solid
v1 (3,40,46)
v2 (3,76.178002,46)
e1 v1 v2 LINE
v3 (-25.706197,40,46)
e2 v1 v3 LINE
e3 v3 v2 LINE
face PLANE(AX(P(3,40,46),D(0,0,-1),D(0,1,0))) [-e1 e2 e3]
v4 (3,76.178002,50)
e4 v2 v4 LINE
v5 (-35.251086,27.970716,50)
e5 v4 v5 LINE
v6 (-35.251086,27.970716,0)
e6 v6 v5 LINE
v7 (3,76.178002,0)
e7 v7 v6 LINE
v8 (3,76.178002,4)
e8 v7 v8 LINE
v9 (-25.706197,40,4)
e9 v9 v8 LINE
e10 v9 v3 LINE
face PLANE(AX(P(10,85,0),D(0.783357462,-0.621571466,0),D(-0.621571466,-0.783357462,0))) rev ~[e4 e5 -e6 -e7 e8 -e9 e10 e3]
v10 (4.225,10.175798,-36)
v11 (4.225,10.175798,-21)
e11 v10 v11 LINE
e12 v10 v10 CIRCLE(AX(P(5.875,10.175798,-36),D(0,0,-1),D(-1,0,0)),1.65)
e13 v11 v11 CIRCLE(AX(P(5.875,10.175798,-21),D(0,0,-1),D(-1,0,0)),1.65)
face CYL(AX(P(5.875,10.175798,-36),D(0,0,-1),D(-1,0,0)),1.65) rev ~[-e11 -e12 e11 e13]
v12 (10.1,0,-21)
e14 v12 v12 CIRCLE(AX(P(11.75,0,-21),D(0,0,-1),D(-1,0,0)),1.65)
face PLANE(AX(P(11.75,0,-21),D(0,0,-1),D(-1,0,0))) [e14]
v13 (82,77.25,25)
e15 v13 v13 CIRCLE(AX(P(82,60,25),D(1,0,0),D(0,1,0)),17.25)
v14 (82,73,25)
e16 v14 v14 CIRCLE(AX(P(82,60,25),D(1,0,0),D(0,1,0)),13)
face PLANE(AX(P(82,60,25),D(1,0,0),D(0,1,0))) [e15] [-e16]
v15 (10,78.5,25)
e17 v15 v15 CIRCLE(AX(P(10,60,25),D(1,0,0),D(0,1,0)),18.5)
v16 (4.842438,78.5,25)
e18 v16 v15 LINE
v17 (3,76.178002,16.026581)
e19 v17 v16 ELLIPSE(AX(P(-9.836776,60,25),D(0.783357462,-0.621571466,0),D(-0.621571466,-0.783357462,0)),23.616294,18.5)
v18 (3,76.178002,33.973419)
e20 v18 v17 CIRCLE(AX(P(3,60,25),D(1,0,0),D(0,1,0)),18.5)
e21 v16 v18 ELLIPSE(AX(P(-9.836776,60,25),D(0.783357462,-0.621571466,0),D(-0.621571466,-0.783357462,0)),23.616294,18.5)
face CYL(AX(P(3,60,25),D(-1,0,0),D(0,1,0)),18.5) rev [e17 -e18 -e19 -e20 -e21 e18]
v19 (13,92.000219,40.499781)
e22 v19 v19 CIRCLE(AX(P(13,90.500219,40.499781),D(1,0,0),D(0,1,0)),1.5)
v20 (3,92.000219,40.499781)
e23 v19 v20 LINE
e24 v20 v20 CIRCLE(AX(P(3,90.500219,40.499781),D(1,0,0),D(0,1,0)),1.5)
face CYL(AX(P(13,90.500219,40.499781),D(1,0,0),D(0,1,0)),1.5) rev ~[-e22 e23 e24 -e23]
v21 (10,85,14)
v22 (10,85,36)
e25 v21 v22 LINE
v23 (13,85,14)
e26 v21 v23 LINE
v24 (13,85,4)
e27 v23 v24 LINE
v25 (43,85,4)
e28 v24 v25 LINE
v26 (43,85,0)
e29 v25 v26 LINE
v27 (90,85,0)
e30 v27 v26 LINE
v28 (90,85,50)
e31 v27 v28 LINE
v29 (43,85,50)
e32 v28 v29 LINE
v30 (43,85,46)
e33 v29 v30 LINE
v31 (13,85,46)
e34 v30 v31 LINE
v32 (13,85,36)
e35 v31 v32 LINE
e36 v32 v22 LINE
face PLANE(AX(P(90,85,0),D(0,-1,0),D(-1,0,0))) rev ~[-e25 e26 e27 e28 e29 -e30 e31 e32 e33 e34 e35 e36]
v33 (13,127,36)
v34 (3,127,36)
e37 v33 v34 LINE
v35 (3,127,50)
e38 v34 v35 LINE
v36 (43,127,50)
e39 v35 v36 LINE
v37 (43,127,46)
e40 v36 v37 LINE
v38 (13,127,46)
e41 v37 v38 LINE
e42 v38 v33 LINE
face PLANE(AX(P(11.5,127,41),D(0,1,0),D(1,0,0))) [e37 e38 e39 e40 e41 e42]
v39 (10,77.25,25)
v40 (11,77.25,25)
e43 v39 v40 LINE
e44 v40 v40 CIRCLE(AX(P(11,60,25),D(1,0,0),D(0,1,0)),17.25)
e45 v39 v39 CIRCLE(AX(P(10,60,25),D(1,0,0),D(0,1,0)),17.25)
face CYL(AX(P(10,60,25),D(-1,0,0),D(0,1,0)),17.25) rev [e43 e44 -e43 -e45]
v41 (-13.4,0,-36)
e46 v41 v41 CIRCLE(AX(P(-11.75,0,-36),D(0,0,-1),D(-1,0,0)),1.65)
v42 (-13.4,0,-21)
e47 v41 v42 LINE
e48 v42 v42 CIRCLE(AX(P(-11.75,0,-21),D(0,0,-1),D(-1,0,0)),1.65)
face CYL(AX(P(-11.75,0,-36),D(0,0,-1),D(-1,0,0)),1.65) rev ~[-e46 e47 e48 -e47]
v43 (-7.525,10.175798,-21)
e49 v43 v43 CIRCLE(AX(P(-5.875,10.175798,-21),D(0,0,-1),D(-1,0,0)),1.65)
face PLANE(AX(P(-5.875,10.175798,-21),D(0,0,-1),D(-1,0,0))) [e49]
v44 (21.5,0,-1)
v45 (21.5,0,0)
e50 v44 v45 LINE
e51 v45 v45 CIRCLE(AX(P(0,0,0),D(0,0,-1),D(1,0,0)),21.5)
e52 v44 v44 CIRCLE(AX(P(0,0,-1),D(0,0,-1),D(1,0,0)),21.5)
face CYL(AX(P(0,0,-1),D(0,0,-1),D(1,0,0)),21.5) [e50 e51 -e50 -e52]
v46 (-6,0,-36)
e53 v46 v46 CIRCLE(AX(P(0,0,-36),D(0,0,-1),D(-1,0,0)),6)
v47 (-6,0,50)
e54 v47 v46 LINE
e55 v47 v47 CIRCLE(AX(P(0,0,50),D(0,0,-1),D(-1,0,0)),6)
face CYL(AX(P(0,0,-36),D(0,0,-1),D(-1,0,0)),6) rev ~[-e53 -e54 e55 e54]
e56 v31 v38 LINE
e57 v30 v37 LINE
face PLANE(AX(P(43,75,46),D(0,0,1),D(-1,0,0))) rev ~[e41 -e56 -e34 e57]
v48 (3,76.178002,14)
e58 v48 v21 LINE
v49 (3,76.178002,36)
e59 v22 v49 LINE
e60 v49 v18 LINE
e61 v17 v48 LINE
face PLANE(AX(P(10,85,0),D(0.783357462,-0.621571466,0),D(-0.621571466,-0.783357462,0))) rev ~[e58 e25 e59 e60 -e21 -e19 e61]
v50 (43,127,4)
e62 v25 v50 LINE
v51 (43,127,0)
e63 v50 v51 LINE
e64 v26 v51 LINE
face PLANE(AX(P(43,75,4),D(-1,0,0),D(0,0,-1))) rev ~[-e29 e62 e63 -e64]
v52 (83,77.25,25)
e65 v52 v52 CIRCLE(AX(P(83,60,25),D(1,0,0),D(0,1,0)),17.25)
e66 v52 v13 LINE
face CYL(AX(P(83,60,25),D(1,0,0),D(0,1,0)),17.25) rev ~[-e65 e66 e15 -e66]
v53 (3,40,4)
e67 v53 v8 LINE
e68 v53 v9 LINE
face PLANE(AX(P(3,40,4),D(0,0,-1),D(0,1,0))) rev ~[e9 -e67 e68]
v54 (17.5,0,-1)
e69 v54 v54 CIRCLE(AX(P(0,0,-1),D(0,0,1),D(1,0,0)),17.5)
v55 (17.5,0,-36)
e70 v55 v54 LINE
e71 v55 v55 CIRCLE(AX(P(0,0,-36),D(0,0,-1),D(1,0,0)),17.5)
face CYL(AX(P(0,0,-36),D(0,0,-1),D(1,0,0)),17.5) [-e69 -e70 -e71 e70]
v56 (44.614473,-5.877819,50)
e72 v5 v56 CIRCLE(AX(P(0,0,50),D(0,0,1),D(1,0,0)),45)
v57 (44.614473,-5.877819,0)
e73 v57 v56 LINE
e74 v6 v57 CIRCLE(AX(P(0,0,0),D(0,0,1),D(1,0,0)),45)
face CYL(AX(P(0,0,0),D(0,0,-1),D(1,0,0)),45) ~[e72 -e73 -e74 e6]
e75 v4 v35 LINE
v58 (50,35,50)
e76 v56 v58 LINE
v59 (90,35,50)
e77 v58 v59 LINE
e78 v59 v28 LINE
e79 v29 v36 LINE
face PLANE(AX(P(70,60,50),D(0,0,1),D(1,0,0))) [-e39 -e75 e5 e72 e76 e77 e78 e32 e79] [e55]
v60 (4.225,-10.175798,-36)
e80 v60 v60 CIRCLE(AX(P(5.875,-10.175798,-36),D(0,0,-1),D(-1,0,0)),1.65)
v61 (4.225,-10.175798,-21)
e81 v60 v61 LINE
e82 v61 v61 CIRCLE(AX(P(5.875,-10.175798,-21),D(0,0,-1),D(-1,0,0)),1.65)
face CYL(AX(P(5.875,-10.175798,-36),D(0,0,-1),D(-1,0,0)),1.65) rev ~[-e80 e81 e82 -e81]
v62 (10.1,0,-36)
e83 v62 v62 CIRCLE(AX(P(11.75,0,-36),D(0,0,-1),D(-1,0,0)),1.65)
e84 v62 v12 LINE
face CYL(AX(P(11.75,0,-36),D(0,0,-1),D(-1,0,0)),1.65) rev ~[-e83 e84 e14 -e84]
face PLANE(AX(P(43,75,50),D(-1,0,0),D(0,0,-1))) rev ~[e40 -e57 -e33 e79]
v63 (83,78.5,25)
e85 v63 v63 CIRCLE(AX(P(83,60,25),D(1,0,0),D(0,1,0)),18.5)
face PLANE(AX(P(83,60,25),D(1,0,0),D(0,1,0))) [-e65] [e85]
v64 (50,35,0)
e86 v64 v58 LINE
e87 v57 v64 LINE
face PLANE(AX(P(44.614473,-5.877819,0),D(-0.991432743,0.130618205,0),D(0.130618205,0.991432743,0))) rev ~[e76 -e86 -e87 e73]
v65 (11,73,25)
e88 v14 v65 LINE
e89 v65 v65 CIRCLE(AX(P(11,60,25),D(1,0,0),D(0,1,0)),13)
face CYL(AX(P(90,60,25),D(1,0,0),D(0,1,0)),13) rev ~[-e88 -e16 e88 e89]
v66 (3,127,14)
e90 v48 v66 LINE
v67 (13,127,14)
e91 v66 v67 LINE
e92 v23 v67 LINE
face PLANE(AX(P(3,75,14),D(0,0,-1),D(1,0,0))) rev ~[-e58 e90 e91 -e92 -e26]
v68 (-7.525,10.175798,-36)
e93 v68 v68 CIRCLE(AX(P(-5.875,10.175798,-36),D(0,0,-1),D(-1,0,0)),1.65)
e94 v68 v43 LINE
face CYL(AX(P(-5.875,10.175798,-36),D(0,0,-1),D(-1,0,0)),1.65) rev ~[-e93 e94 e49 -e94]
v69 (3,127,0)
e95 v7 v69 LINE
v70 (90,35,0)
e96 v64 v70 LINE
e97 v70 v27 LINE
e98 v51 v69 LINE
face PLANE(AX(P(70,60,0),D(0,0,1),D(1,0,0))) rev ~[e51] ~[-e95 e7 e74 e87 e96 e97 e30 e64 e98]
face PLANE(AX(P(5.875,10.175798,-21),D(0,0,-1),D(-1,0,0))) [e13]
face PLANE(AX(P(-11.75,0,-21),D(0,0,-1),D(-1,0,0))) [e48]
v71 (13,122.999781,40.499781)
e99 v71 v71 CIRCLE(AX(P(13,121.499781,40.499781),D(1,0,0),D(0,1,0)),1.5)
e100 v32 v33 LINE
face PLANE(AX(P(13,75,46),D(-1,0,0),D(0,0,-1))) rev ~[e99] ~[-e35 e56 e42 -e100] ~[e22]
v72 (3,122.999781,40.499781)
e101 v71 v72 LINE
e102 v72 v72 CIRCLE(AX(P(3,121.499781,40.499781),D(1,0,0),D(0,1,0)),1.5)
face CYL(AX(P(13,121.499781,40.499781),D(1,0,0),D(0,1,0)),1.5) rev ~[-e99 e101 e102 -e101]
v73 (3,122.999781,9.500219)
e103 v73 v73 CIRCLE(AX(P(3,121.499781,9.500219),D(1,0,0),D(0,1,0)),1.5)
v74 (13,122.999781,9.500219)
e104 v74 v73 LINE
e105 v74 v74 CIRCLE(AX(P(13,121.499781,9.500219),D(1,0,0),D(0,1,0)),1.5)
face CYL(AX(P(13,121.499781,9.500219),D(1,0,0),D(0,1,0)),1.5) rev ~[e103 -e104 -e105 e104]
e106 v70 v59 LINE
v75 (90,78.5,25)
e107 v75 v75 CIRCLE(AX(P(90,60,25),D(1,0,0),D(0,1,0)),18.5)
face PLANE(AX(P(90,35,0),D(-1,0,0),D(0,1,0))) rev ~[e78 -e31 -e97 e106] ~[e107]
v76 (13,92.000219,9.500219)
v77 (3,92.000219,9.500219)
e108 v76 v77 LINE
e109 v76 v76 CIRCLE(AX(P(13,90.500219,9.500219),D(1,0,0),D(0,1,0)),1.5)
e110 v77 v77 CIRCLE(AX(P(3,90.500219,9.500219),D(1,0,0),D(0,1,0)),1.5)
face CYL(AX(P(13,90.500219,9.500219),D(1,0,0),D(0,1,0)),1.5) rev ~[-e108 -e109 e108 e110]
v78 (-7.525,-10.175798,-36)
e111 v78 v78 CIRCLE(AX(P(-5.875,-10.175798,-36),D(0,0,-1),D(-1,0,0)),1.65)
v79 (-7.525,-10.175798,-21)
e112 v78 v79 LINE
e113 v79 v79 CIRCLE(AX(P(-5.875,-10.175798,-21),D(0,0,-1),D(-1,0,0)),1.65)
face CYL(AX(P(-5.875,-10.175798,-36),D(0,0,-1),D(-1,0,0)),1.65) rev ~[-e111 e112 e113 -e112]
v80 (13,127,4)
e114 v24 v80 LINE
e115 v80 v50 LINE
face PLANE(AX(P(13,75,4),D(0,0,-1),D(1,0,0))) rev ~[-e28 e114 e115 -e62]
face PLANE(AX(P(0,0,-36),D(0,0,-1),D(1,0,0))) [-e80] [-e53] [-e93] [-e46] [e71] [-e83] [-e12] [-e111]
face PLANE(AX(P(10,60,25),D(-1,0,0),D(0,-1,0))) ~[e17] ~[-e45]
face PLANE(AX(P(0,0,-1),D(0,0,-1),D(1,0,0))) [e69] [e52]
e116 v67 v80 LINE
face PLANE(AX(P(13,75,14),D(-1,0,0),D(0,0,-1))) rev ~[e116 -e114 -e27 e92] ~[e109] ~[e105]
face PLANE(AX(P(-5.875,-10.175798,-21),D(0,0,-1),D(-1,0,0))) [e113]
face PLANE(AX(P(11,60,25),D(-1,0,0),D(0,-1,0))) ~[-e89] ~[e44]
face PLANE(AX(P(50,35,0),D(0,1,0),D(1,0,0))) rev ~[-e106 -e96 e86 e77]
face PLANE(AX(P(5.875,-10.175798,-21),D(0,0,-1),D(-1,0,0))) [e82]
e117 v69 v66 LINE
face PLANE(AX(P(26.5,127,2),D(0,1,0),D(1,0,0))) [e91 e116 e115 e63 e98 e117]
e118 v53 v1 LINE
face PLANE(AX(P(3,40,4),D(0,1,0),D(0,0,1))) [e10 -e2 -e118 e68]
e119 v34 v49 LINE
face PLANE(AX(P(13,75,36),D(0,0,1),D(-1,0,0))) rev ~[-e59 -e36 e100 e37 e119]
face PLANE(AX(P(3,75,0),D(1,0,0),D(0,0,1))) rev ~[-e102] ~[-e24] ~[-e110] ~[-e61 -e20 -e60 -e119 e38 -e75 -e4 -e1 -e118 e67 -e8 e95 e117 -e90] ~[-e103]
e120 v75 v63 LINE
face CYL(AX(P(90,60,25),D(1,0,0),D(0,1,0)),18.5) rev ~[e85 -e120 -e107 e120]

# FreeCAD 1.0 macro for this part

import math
import FreeCAD as App
import Part
import Sketcher
from FreeCAD import Vector


def add_polygon(sketch, points):
    """Adds a closed chain of lines whose ends are joined by coincident constraints."""
    first, n = sketch.GeometryCount, len(points)
    for a, b in zip(points, points[1:] + points[:1]):
        sketch.addGeometry(Part.LineSegment(App.Vector(*a, 0), App.Vector(*b, 0)), False)
    for i in range(n):
        sketch.addConstraint(Sketcher.Constraint("Coincident", first + i, 2, first + (i + 1) % n, 1))

doc = App.newDocument("Part")
body = doc.addObject("PartDesign::Body", "Body")

sketch1 = body.newObject("Sketcher::SketchObject", "Sketch")
sketch1.AttachmentSupport = (doc.getObject("XY_Plane"), [""])
sketch1.MapMode = "FlatFace"
sketch1.addGeometry(Part.LineSegment(Vector(50, 35, 0), Vector(90, 35, 0)), False)
sketch1.addGeometry(Part.LineSegment(Vector(90, 35, 0), Vector(90, 85, 0)), False)
sketch1.addGeometry(Part.LineSegment(Vector(90, 85, 0), Vector(10, 85, 0)), False)
sketch1.addGeometry(Part.LineSegment(Vector(10, 85, 0), Vector(-35.251086, 27.970716, 0)), False)
sketch1.addGeometry(Part.ArcOfCircle(Part.Circle(Vector(0, 0, 0), Vector(0, 0, 1), 45), math.radians(141.569018), math.radians(352.494683)), False)
sketch1.addGeometry(Part.LineSegment(Vector(44.614473, -5.877819, 0), Vector(50, 35, 0)), False)
sketch1.addConstraint(Sketcher.Constraint("Coincident", 0, 2, 1, 1))
sketch1.addConstraint(Sketcher.Constraint("Coincident", 1, 2, 2, 1))
sketch1.addConstraint(Sketcher.Constraint("Coincident", 2, 2, 3, 1))
sketch1.addConstraint(Sketcher.Constraint("Tangent", 3, 2, 4, 1))
sketch1.addConstraint(Sketcher.Constraint("Tangent", 4, 2, 5, 1))
sketch1.addConstraint(Sketcher.Constraint("Coincident", 5, 2, 0, 1))
sketch1.addConstraint(Sketcher.Constraint("Horizontal", 0))
sketch1.addConstraint(Sketcher.Constraint("Vertical", 1))
sketch1.addConstraint(Sketcher.Constraint("Horizontal", 2))
sketch1.addConstraint(Sketcher.Constraint("Coincident", 4, 3, -1, 1))
sketch1.addConstraint(Sketcher.Constraint("Radius", 4, 45.0))
sketch1.addConstraint(Sketcher.Constraint("DistanceX", 0, 1, 0, 2, 40.0))
sketch1.addConstraint(Sketcher.Constraint("DistanceX", 2, 2, 2, 1, 80.0))
sketch1.addConstraint(Sketcher.Constraint("DistanceY", 1, 1, 1, 2, 50.0))
sketch1.addConstraint(Sketcher.Constraint("DistanceX", -1, 1, 0, 2, 90.0))
sketch1.addConstraint(Sketcher.Constraint("DistanceY", -1, 1, 0, 2, 35.0))
pad1 = body.newObject("PartDesign::Pad", "Pad")
pad1.Profile = sketch1
pad1.Length = 50

sketch2 = body.newObject("Sketcher::SketchObject", "Sketch001")
sketch2.AttachmentSupport = (doc.getObject("YZ_Plane"), [""])
sketch2.MapMode = "FlatFace"
sketch2.AttachmentOffset = App.Placement(Vector(0, 0, 90), App.Rotation())
sketch2.addGeometry(Part.Circle(Vector(60, 25, 0), Vector(0, 0, 1), 13), False)
sketch2.addConstraint(Sketcher.Constraint("Diameter", 0, 26.0))
sketch2.addConstraint(Sketcher.Constraint("DistanceX", -1, 1, 0, 3, 60.0))
sketch2.addConstraint(Sketcher.Constraint("DistanceY", -1, 1, 0, 3, 25.0))
pocket1 = body.newObject("PartDesign::Pocket", "Pocket")
pocket1.Profile = sketch2
pocket1.Length = 130

sketch3 = body.newObject("Sketcher::SketchObject", "Sketch002")
sketch3.AttachmentSupport = (doc.getObject("XZ_Plane"), [""])
sketch3.MapMode = "FlatFace"
sketch3.AttachmentOffset = App.Placement(Vector(0, 0, -85), App.Rotation())
add_polygon(sketch3, [(43, 4), (43, 0), (3, 0), (3, 14), (13, 14), (13, 4)])
add_polygon(sketch3, [(13, 46), (13, 36), (3, 36), (3, 50), (43, 50), (43, 46)])
sketch3.addConstraint(Sketcher.Constraint("Vertical", 0))
sketch3.addConstraint(Sketcher.Constraint("Horizontal", 1))
sketch3.addConstraint(Sketcher.Constraint("Vertical", 2))
sketch3.addConstraint(Sketcher.Constraint("Horizontal", 3))
sketch3.addConstraint(Sketcher.Constraint("Vertical", 4))
sketch3.addConstraint(Sketcher.Constraint("Horizontal", 5))
sketch3.addConstraint(Sketcher.Constraint("Vertical", 6))
sketch3.addConstraint(Sketcher.Constraint("Horizontal", 7))
sketch3.addConstraint(Sketcher.Constraint("Vertical", 8))
sketch3.addConstraint(Sketcher.Constraint("Horizontal", 9))
sketch3.addConstraint(Sketcher.Constraint("Vertical", 10))
sketch3.addConstraint(Sketcher.Constraint("Horizontal", 11))
sketch3.addConstraint(Sketcher.Constraint("PointOnObject", 0, 2, -1))
sketch3.addConstraint(Sketcher.Constraint("Vertical", 4, 2, 6, 2))
sketch3.addConstraint(Sketcher.Constraint("Vertical", 2, 2, 7, 2))
sketch3.addConstraint(Sketcher.Constraint("Vertical", 5, 2, 9, 2))
sketch3.addConstraint(Sketcher.Constraint("Equal", 7, 4))
sketch3.addConstraint(Sketcher.Constraint("Equal", 4, 6))
sketch3.addConstraint(Sketcher.Constraint("Equal", 2, 8))
sketch3.addConstraint(Sketcher.Constraint("DistanceX", 1, 2, 1, 1, 40.0))
sketch3.addConstraint(Sketcher.Constraint("DistanceX", 3, 1, 3, 2, 10.0))
sketch3.addConstraint(Sketcher.Constraint("DistanceY", 0, 2, 0, 1, 4.0))
sketch3.addConstraint(Sketcher.Constraint("DistanceX", -1, 1, 0, 2, 43.0))
sketch3.addConstraint(Sketcher.Constraint("DistanceY", -1, 1, 6, 2, 36.0))
pad2 = body.newObject("PartDesign::Pad", "Pad001")
pad2.Profile = sketch3
pad2.Type = "TwoLengths"
pad2.Length = 42
pad2.Length2 = 10
pad2.Reversed = True

sketch4 = body.newObject("Sketcher::SketchObject", "Sketch003")
sketch4.AttachmentSupport = (doc.getObject("YZ_Plane"), [""])
sketch4.MapMode = "FlatFace"
sketch4.AttachmentOffset = App.Placement(Vector(0, 0, -40), App.Rotation())
add_polygon(sketch4, [(80, 4), (40, 4), (40, 46), (80, 46)])
sketch4.addConstraint(Sketcher.Constraint("Horizontal", 0))
sketch4.addConstraint(Sketcher.Constraint("Vertical", 1))
sketch4.addConstraint(Sketcher.Constraint("Horizontal", 2))
sketch4.addConstraint(Sketcher.Constraint("Vertical", 3))
sketch4.addConstraint(Sketcher.Constraint("DistanceX", 0, 2, 0, 1, 40.0))
sketch4.addConstraint(Sketcher.Constraint("DistanceY", 1, 1, 1, 2, 42.0))
sketch4.addConstraint(Sketcher.Constraint("DistanceX", -1, 1, 0, 2, 40.0))
sketch4.addConstraint(Sketcher.Constraint("DistanceY", -1, 1, 0, 2, 4.0))
pocket2 = body.newObject("PartDesign::Pocket", "Pocket001")
pocket2.Profile = sketch4
pocket2.Type = "TwoLengths"
pocket2.Length = 11
pocket2.Length2 = 43

sketch5 = body.newObject("Sketcher::SketchObject", "Sketch004")
sketch5.AttachmentSupport = (doc.getObject("YZ_Plane"), [""])
sketch5.MapMode = "FlatFace"
sketch5.AttachmentOffset = App.Placement(Vector(0, 0, 13), App.Rotation())
sketch5.addGeometry(Part.Circle(Vector(121.499781, 9.500219, 0), Vector(0, 0, 1), 1.5), False)
sketch5.addGeometry(Part.Circle(Vector(90.500219, 9.500219, 0), Vector(0, 0, 1), 1.5), False)
sketch5.addGeometry(Part.Circle(Vector(90.500219, 40.499781, 0), Vector(0, 0, 1), 1.5), False)
sketch5.addGeometry(Part.Circle(Vector(121.499781, 40.499781, 0), Vector(0, 0, 1), 1.5), False)
sketch5.addConstraint(Sketcher.Constraint("Equal", 0, 1))
sketch5.addConstraint(Sketcher.Constraint("Equal", 1, 2))
sketch5.addConstraint(Sketcher.Constraint("Equal", 2, 3))
sketch5.addConstraint(Sketcher.Constraint("Horizontal", 0, 3, 1, 3))
sketch5.addConstraint(Sketcher.Constraint("Horizontal", 2, 3, 3, 3))
sketch5.addConstraint(Sketcher.Constraint("Vertical", 1, 3, 2, 3))
sketch5.addConstraint(Sketcher.Constraint("Vertical", 0, 3, 3, 3))
sketch5.addConstraint(Sketcher.Constraint("Diameter", 0, 3.0))
sketch5.addConstraint(Sketcher.Constraint("DistanceX", -1, 1, 0, 3, 121.499781))
sketch5.addConstraint(Sketcher.Constraint("DistanceY", -1, 1, 0, 3, 9.500219))
sketch5.addConstraint(Sketcher.Constraint("DistanceX", -1, 1, 1, 3, 90.500219))
sketch5.addConstraint(Sketcher.Constraint("DistanceY", -1, 1, 2, 3, 40.499781))
pocket3 = body.newObject("PartDesign::Pocket", "Pocket002")
pocket3.Profile = sketch5
pocket3.Length = 10

sketch6 = body.newObject("Sketcher::SketchObject", "Sketch005")
sketch6.AttachmentSupport = (doc.getObject("XY_Plane"), [""])
sketch6.MapMode = "FlatFace"
sketch6.addGeometry(Part.Circle(Vector(0, 0, 0), Vector(0, 0, 1), 6), False)
sketch6.addConstraint(Sketcher.Constraint("Coincident", 0, 3, -1, 1))
sketch6.addConstraint(Sketcher.Constraint("Diameter", 0, 12.0))
pocket4 = body.newObject("PartDesign::Pocket", "Pocket003")
pocket4.Profile = sketch6
pocket4.Length = 50
pocket4.Reversed = True

sketch7 = body.newObject("Sketcher::SketchObject", "Sketch006")
sketch7.AttachmentSupport = (doc.getObject("XY_Plane"), [""])
sketch7.MapMode = "FlatFace"
sketch7.AttachmentOffset = App.Placement(Vector(0, 0, -36), App.Rotation())
sketch7.addGeometry(Part.Circle(Vector(0, 0, 0), Vector(0, 0, 1), 17.5), False)
sketch7.addGeometry(Part.Circle(Vector(0, 0, 0), Vector(0, 0, 1), 6), False)
sketch7.addConstraint(Sketcher.Constraint("Coincident", 0, 3, -1, 1))
sketch7.addConstraint(Sketcher.Constraint("Coincident", 1, 3, -1, 1))
sketch7.addConstraint(Sketcher.Constraint("Diameter", 0, 35.0))
sketch7.addConstraint(Sketcher.Constraint("Diameter", 1, 12.0))
pad3 = body.newObject("PartDesign::Pad", "Pad002")
pad3.Profile = sketch7
pad3.Length = 36

sketch8 = body.newObject("Sketcher::SketchObject", "Sketch007")
sketch8.AttachmentSupport = (doc.getObject("XY_Plane"), [""])
sketch8.MapMode = "FlatFace"
sketch8.AttachmentOffset = App.Placement(Vector(0, 0, -1), App.Rotation())
sketch8.addGeometry(Part.Circle(Vector(0, 0, 0), Vector(0, 0, 1), 21.5), False)
sketch8.addGeometry(Part.Circle(Vector(0, 0, 0), Vector(0, 0, 1), 17.5), False)
sketch8.addConstraint(Sketcher.Constraint("Coincident", 0, 3, -1, 1))
sketch8.addConstraint(Sketcher.Constraint("Coincident", 1, 3, -1, 1))
sketch8.addConstraint(Sketcher.Constraint("Diameter", 0, 43.0))
sketch8.addConstraint(Sketcher.Constraint("Diameter", 1, 35.0))
pad4 = body.newObject("PartDesign::Pad", "Pad003")
pad4.Profile = sketch8
pad4.Length = 1

sketch9 = body.newObject("Sketcher::SketchObject", "Sketch008")
sketch9.AttachmentSupport = (doc.getObject("XY_Plane"), [""])
sketch9.MapMode = "FlatFace"
sketch9.AttachmentOffset = App.Placement(Vector(0, 0, -36), App.Rotation())
sketch9.addGeometry(Part.Circle(Vector(11.75, 0, 0), Vector(0, 0, 1), 1.65), False)
sketch9.addGeometry(Part.Circle(Vector(5.875, 10.175798, 0), Vector(0, 0, 1), 1.65), False)
sketch9.addGeometry(Part.Circle(Vector(-5.875, 10.175798, 0), Vector(0, 0, 1), 1.65), False)
sketch9.addGeometry(Part.Circle(Vector(-11.75, 0, 0), Vector(0, 0, 1), 1.65), False)
sketch9.addGeometry(Part.Circle(Vector(-5.875, -10.175798, 0), Vector(0, 0, 1), 1.65), False)
sketch9.addGeometry(Part.Circle(Vector(5.875, -10.175798, 0), Vector(0, 0, 1), 1.65), False)
sketch9.addConstraint(Sketcher.Constraint("Equal", 0, 1))
sketch9.addConstraint(Sketcher.Constraint("Equal", 1, 2))
sketch9.addConstraint(Sketcher.Constraint("Equal", 2, 3))
sketch9.addConstraint(Sketcher.Constraint("Equal", 3, 4))
sketch9.addConstraint(Sketcher.Constraint("Equal", 4, 5))
sketch9.addConstraint(Sketcher.Constraint("Symmetric", 0, 3, 3, 3, -1, 1))
sketch9.addConstraint(Sketcher.Constraint("Symmetric", 1, 3, 4, 3, -1, 1))
sketch9.addConstraint(Sketcher.Constraint("Symmetric", 2, 3, 5, 3, -1, 1))
sketch9.addConstraint(Sketcher.Constraint("Symmetric", 1, 3, 2, 3, -2))
sketch9.addConstraint(Sketcher.Constraint("PointOnObject", 0, 3, -1))
sketch9.addConstraint(Sketcher.Constraint("Diameter", 0, 3.3))
sketch9.addConstraint(Sketcher.Constraint("DistanceX", 3, 3, 0, 3, 23.5))
sketch9.addConstraint(Sketcher.Constraint("DistanceX", 2, 3, 1, 3, 11.75))
sketch9.addConstraint(Sketcher.Constraint("DistanceY", -1, 1, 1, 3, 10.175798))
pocket5 = body.newObject("PartDesign::Pocket", "Pocket004")
pocket5.Profile = sketch9
pocket5.Length = 15
pocket5.Reversed = True

sketch10 = body.newObject("Sketcher::SketchObject", "Sketch009")
sketch10.AttachmentSupport = (doc.getObject("YZ_Plane"), [""])
sketch10.MapMode = "FlatFace"
sketch10.AttachmentOffset = App.Placement(Vector(0, 0, 90), App.Rotation())
sketch10.addGeometry(Part.Circle(Vector(60, 25, 0), Vector(0, 0, 1), 18.5), False)
sketch10.addConstraint(Sketcher.Constraint("Diameter", 0, 37.0))
sketch10.addConstraint(Sketcher.Constraint("DistanceX", -1, 1, 0, 3, 60.0))
sketch10.addConstraint(Sketcher.Constraint("DistanceY", -1, 1, 0, 3, 25.0))
pocket6 = body.newObject("PartDesign::Pocket", "Pocket005")
pocket6.Profile = sketch10
pocket6.Length = 7

sketch11 = body.newObject("Sketcher::SketchObject", "Sketch010")
sketch11.AttachmentSupport = (doc.getObject("YZ_Plane"), [""])
sketch11.MapMode = "FlatFace"
sketch11.AttachmentOffset = App.Placement(Vector(0, 0, 83), App.Rotation())
sketch11.addGeometry(Part.Circle(Vector(60, 25, 0), Vector(0, 0, 1), 17.25), False)
sketch11.addConstraint(Sketcher.Constraint("Diameter", 0, 34.5))
sketch11.addConstraint(Sketcher.Constraint("DistanceX", -1, 1, 0, 3, 60.0))
sketch11.addConstraint(Sketcher.Constraint("DistanceY", -1, 1, 0, 3, 25.0))
pocket7 = body.newObject("PartDesign::Pocket", "Pocket006")
pocket7.Profile = sketch11
pocket7.Length = 1
doc.recompute()

datumplane = body.newObject("PartDesign::Plane", "DatumPlane")
datumplane.AttachmentSupport = (doc.getObject("YZ_Plane"), [""])
datumplane.MapMode = "FlatFace"
datumplane.AttachmentOffset = App.Placement(Vector(0, 0, 46.5), App.Rotation())
mirrored = body.newObject("PartDesign::Mirrored", "Mirrored")
mirrored.Originals = [pocket6, pocket7]
mirrored.MirrorPlane = (datumplane, [""])
body.Tip = mirrored

doc.recompute()
